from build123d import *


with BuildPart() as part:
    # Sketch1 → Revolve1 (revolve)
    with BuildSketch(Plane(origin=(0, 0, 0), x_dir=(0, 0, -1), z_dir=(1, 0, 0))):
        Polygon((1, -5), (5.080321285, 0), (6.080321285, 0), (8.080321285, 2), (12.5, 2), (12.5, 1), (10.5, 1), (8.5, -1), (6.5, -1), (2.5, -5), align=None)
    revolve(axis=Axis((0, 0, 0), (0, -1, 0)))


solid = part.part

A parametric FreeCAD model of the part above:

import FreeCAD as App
import Part
import Sketcher
from FreeCAD import Vector
Q = App.Units.Quantity

doc = App.newDocument("Part")
params = doc.addObject("Spreadsheet::Sheet", "Params")
for row, (alias, value) in enumerate([
    ("sketch1_width", "1 mm"),
    ("sketch1_height", "2 mm"),
    ("sketch1_height2", "1.5 mm"),
    ("revolution_angle", "360 deg"),
], start=1):
    params.set(f"A{row}", alias)
    params.set(f"B{row}", "=" + value)
    params.setAlias(f"B{row}", alias)

body = doc.addObject("PartDesign::Body", "Body")

# Sketch on YZ plane
sketch1 = body.newObject("Sketcher::SketchObject", "Sketch")
sketch1.AttachmentSupport = (doc.getObject("YZ_Plane"), [""])
sketch1.MapMode = "FlatFace"
sketch1.addGeometry(Part.LineSegment(Vector(0, -5.080321, 0), Vector(-5, -1, 0)), False)
sketch1.addGeometry(Part.LineSegment(Vector(-5, -1, 0), Vector(-5, -2.5, 0)), False)
sketch1.addGeometry(Part.LineSegment(Vector(-5, -2.5, 0), Vector(-1, -6.5, 0)), False)
sketch1.addGeometry(Part.LineSegment(Vector(-1, -6.5, 0), Vector(-1, -8.5, 0)), False)
sketch1.addGeometry(Part.LineSegment(Vector(-1, -8.5, 0), Vector(1, -10.5, 0)), False)
sketch1.addGeometry(Part.LineSegment(Vector(1, -10.5, 0), Vector(1, -12.5, 0)), False)
sketch1.addGeometry(Part.LineSegment(Vector(1, -12.5, 0), Vector(2, -12.5, 0)), False)
sketch1.addGeometry(Part.LineSegment(Vector(2, -12.5, 0), Vector(2, -8.080321, 0)), False)
sketch1.addGeometry(Part.LineSegment(Vector(2, -8.080321, 0), Vector(0, -6.080321, 0)), False)
sketch1.addGeometry(Part.LineSegment(Vector(0, -6.080321, 0), Vector(0, -5.080321, 0)), False)
sketch1.addConstraint(Sketcher.Constraint("Coincident", 0, 2, 1, 1))
sketch1.addConstraint(Sketcher.Constraint("Coincident", 1, 2, 2, 1))
sketch1.addConstraint(Sketcher.Constraint("Coincident", 2, 2, 3, 1))
sketch1.addConstraint(Sketcher.Constraint("Coincident", 3, 2, 4, 1))
sketch1.addConstraint(Sketcher.Constraint("Coincident", 4, 2, 5, 1))
sketch1.addConstraint(Sketcher.Constraint("Coincident", 5, 2, 6, 1))
sketch1.addConstraint(Sketcher.Constraint("Coincident", 6, 2, 7, 1))
sketch1.addConstraint(Sketcher.Constraint("Coincident", 7, 2, 8, 1))
sketch1.addConstraint(Sketcher.Constraint("Coincident", 8, 2, 9, 1))
sketch1.addConstraint(Sketcher.Constraint("Coincident", 9, 2, 0, 1))
sketch1.addConstraint(Sketcher.Constraint("Vertical", 1))
sketch1.addConstraint(Sketcher.Constraint("Vertical", 3))
sketch1.addConstraint(Sketcher.Constraint("Vertical", 5))
sketch1.addConstraint(Sketcher.Constraint("Horizontal", 6))
sketch1.addConstraint(Sketcher.Constraint("Vertical", 7))
sketch1.addConstraint(Sketcher.Constraint("Vertical", 9))
sketch1.addConstraint(Sketcher.Constraint("PointOnObject", 8, 2, -2))
sketch1.addConstraint(Sketcher.Constraint("Parallel", 2, 4))
sketch1.addConstraint(Sketcher.Constraint("Parallel", 4, 8))
sketch1.addConstraint(Sketcher.Constraint("Equal", 3, 5))
sketch1.addConstraint(Sketcher.Constraint("Equal", 6, 9))
sketch1.addConstraint(Sketcher.Constraint("Equal", 4, 8))
sketch1.addConstraint(Sketcher.Constraint("DistanceX", 6, 1, 6, 2, 1.0))
sketch1.addConstraint(Sketcher.Constraint("DistanceY", 3, 2, 3, 1, 2.0))
sketch1.addConstraint(Sketcher.Constraint("Angle", 2, Q("-45 deg")))
sketch1.addConstraint(Sketcher.Constraint("DistanceY", 1, 2, 1, 1, 1.5))
sketch1.addConstraint(Sketcher.Constraint("DistanceX", 0, 2, -1, 1, 5.0))
sketch1.addConstraint(Sketcher.Constraint("DistanceY", 0, 2, -1, 1, 1.0))
sketch1.addConstraint(Sketcher.Constraint("DistanceX", -1, 1, 4, 2, 1.0))
sketch1.addConstraint(Sketcher.Constraint("DistanceY", 7, 1, 7, 2, 4.419679))
sketch1.setExpression("Constraints[22]", "Params.sketch1_width")
sketch1.setExpression("Constraints[23]", "Params.sketch1_height")
sketch1.setExpression("Constraints[25]", "Params.sketch1_height2")
revolution = body.newObject("PartDesign::Revolution", "Revolution")
revolution.Profile = sketch1
revolution.ReferenceAxis = (sketch1, ["H_Axis"])
revolution.setExpression("Angle", "Params.revolution_angle")

doc.recompute()
